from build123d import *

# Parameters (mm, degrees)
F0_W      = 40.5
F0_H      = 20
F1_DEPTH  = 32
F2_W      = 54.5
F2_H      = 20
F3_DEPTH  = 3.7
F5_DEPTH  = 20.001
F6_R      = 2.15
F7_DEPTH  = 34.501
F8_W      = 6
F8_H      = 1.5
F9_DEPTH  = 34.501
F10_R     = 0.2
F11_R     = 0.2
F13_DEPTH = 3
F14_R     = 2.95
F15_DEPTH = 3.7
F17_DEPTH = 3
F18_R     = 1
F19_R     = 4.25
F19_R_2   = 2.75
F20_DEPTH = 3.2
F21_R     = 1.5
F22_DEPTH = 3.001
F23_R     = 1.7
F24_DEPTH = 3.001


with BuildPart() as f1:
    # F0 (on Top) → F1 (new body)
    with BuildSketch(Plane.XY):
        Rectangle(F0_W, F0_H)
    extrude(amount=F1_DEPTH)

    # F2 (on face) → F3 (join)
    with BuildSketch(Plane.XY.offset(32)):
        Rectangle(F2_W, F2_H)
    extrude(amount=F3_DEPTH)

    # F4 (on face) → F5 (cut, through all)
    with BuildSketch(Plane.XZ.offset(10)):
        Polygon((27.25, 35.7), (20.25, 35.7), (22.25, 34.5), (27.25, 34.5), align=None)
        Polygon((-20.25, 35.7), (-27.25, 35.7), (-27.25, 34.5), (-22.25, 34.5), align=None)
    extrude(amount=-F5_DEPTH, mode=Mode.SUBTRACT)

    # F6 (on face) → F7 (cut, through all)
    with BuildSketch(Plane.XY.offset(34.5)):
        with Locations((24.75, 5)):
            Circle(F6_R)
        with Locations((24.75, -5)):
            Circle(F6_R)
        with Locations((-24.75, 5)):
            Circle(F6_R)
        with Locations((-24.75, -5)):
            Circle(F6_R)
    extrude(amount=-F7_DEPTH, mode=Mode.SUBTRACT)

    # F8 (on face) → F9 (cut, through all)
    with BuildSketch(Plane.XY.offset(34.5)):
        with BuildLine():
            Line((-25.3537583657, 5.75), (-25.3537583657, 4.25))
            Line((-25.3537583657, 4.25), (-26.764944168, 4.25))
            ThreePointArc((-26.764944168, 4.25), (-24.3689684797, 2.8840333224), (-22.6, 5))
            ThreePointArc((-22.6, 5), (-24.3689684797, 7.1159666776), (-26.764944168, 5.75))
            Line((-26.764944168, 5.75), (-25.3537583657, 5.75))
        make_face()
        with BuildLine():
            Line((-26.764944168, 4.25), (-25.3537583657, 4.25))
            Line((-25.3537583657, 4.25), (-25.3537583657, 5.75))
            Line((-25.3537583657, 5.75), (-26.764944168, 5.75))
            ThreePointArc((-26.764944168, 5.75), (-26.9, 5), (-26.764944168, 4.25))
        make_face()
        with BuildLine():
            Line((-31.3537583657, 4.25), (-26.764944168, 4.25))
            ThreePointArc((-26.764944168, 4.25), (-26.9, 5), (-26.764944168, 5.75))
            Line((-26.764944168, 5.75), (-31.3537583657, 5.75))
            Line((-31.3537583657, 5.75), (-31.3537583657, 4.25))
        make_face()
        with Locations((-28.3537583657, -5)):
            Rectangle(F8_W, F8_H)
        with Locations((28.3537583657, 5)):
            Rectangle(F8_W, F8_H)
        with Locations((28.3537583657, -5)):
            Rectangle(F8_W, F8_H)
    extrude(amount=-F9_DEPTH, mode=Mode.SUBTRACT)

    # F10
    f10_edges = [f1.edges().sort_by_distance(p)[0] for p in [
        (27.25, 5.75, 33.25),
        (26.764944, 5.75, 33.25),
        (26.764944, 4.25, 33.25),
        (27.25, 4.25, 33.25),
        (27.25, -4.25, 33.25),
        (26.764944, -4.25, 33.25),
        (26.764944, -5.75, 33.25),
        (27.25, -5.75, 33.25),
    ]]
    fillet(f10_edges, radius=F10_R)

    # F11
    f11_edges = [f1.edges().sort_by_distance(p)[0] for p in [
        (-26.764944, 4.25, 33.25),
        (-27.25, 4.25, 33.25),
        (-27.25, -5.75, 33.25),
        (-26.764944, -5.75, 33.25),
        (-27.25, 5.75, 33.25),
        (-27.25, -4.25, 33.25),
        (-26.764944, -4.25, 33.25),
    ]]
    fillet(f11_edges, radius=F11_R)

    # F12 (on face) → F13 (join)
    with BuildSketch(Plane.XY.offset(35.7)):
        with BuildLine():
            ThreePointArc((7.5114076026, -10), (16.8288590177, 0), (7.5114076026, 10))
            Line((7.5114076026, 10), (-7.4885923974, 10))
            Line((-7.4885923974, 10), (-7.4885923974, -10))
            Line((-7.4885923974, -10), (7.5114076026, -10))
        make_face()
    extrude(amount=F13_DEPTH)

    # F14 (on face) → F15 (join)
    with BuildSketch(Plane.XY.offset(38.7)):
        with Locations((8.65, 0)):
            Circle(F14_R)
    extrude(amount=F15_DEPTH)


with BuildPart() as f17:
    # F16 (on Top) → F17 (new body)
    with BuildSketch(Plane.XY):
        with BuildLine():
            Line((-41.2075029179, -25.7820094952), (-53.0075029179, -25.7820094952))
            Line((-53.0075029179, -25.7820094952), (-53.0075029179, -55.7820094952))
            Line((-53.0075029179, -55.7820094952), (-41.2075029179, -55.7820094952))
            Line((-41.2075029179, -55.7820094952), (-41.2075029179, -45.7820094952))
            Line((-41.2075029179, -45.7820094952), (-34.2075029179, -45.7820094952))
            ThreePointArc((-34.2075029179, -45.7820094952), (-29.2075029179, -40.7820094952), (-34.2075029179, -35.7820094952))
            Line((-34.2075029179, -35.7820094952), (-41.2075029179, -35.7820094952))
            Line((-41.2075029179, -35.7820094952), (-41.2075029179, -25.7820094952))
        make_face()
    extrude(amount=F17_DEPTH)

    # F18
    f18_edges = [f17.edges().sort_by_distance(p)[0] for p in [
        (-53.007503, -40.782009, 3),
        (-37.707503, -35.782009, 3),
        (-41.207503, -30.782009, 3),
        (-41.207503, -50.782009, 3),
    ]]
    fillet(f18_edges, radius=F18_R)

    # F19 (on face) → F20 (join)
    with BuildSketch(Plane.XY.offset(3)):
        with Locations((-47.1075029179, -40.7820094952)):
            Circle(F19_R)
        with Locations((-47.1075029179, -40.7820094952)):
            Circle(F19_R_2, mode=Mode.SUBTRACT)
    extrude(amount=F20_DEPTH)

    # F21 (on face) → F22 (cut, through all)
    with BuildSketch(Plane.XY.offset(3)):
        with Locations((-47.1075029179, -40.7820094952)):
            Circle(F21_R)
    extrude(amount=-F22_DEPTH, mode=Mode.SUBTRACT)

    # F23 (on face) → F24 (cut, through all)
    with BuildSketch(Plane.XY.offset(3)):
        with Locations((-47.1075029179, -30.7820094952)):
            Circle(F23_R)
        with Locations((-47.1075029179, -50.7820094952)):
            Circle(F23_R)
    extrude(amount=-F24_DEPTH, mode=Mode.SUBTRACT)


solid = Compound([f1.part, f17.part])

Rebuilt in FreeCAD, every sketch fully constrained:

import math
import FreeCAD as App
import Part
import Sketcher


def edges_at(feature, points):
    """Names of the edges that pass closest to the given points."""
    edges = feature.Shape.Edges
    near = lambda p: min(range(len(edges)), key=lambda i: edges[i].distToShape(Part.Vertex(*p))[0])
    return sorted({f"Edge{near(p) + 1}" for p in points})


def add_polygon(sketch, points):
    """Adds a closed chain of lines whose ends are joined by coincident constraints."""
    first, n = sketch.GeometryCount, len(points)
    for a, b in zip(points, points[1:] + points[:1]):
        sketch.addGeometry(Part.LineSegment(App.Vector(*a, 0), App.Vector(*b, 0)), False)
    for i in range(n):
        sketch.addConstraint(Sketcher.Constraint("Coincident", first + i, 2, first + (i + 1) % n, 1))

doc = App.newDocument("Part")
body = doc.addObject("PartDesign::Body", "Body")

sketch1 = doc.addObject("Sketcher::SketchObject", "Sketch")
body.addObject(sketch1)
sketch1.AttachmentSupport = (doc.XY_Plane, [""])
sketch1.MapMode = "FlatFace"
add_polygon(sketch1, [(-20, 10), (-20, -10), (20, -10), (20, 10)])
sketch1.addConstraint(Sketcher.Constraint("Vertical", 0))
sketch1.addConstraint(Sketcher.Constraint("Horizontal", 1))
sketch1.addConstraint(Sketcher.Constraint("Vertical", 2))
sketch1.addConstraint(Sketcher.Constraint("Horizontal", 3))
sketch1.addConstraint(Sketcher.Constraint("Symmetric", 0, 2, 2, 2, -1, 1))
sketch1.addConstraint(Sketcher.Constraint("DistanceY", 0, 2, 0, 1, 20.0))
sketch1.addConstraint(Sketcher.Constraint("DistanceX", 1, 1, 1, 2, 40.5))
pad1 = doc.addObject("PartDesign::Pad", "Pad")
body.addObject(pad1)
pad1.Profile = sketch1
pad1.Length = 32

sketch2 = doc.addObject("Sketcher::SketchObject", "Sketch001")
body.addObject(sketch2)
sketch2.AttachmentSupport = (doc.XY_Plane, [""])
sketch2.MapMode = "FlatFace"
sketch2.AttachmentOffset = App.Placement(App.Vector(0, 0, 32), App.Rotation())
add_polygon(sketch2, [(-27, 10), (-27, -10), (27, -10), (27, 10)])
sketch2.addConstraint(Sketcher.Constraint("Vertical", 0))
sketch2.addConstraint(Sketcher.Constraint("Horizontal", 1))
sketch2.addConstraint(Sketcher.Constraint("Vertical", 2))
sketch2.addConstraint(Sketcher.Constraint("Horizontal", 3))
sketch2.addConstraint(Sketcher.Constraint("Symmetric", 0, 2, 2, 2, -1, 1))
sketch2.addConstraint(Sketcher.Constraint("DistanceY", 0, 2, 0, 1, 20.0))
sketch2.addConstraint(Sketcher.Constraint("DistanceX", 1, 1, 1, 2, 54.5))
pad2 = doc.addObject("PartDesign::Pad", "Pad001")
body.addObject(pad2)
pad2.Profile = sketch2
pad2.Length = 3.7

sketch3 = doc.addObject("Sketcher::SketchObject", "Sketch002")
body.addObject(sketch3)
sketch3.AttachmentSupport = (doc.XZ_Plane, [""])
sketch3.MapMode = "FlatFace"
sketch3.AttachmentOffset = App.Placement(App.Vector(0, 0, 10), App.Rotation())
add_polygon(sketch3, [(27.2, 35.7), (20.2, 35.7), (22.2, 34.5), (27.2, 34.5)])
add_polygon(sketch3, [(-20.2, 35.7), (-27.2, 35.7), (-27.2, 34.5), (-22.2, 34.5)])
sketch3.addConstraint(Sketcher.Constraint("Horizontal", 0))
sketch3.addConstraint(Sketcher.Constraint("Horizontal", 2))
sketch3.addConstraint(Sketcher.Constraint("Vertical", 3))
sketch3.addConstraint(Sketcher.Constraint("Horizontal", 4))
sketch3.addConstraint(Sketcher.Constraint("Vertical", 5))
sketch3.addConstraint(Sketcher.Constraint("Horizontal", 6))
sketch3.addConstraint(Sketcher.Constraint("Symmetric", 3, 2, 4, 2, -2))
sketch3.addConstraint(Sketcher.Constraint("Symmetric", 1, 2, 6, 2, -2))
sketch3.addConstraint(Sketcher.Constraint("Equal", 0, 4))
sketch3.addConstraint(Sketcher.Constraint("DistanceX", 0, 2, 0, 1, 7.0))
sketch3.addConstraint(Sketcher.Constraint("DistanceX", 2, 1, 2, 2, 5.0))
sketch3.addConstraint(Sketcher.Constraint("DistanceY", 3, 1, 3, 2, 1.2))
sketch3.addConstraint(Sketcher.Constraint("DistanceY", -1, 1, 0, 2, 35.7))
sketch3.addConstraint(Sketcher.Constraint("DistanceX", 4, 2, 0, 2, 47.5))
pocket1 = doc.addObject("PartDesign::Pocket", "Pocket")
body.addObject(pocket1)
pocket1.Profile = sketch3
pocket1.Type = "ThroughAll"

sketch4 = doc.addObject("Sketcher::SketchObject", "Sketch003")
body.addObject(sketch4)
sketch4.AttachmentSupport = (doc.XY_Plane, [""])
sketch4.MapMode = "FlatFace"
sketch4.AttachmentOffset = App.Placement(App.Vector(0, 0, 34.5), App.Rotation())
sketch4.addGeometry(Part.Circle(App.Vector(24.8, 5, 0), App.Vector(0, 0, 1), 2.1), False)
sketch4.addGeometry(Part.Circle(App.Vector(24.8, -5, 0), App.Vector(0, 0, 1), 2.1), False)
sketch4.addGeometry(Part.Circle(App.Vector(-24.8, 5, 0), App.Vector(0, 0, 1), 2.1), False)
sketch4.addGeometry(Part.Circle(App.Vector(-24.8, -5, 0), App.Vector(0, 0, 1), 2.1), False)
sketch4.addConstraint(Sketcher.Constraint("Equal", 0, 1))
sketch4.addConstraint(Sketcher.Constraint("Equal", 1, 2))
sketch4.addConstraint(Sketcher.Constraint("Equal", 2, 3))
sketch4.addConstraint(Sketcher.Constraint("Symmetric", 1, 3, 2, 3, -1, 1))
sketch4.addConstraint(Sketcher.Constraint("Symmetric", 0, 3, 3, 3, -1, 1))
sketch4.addConstraint(Sketcher.Constraint("Symmetric", 0, 3, 2, 3, -2))
sketch4.addConstraint(Sketcher.Constraint("Diameter", 0, 4.3))
sketch4.addConstraint(Sketcher.Constraint("DistanceY", -1, 1, 0, 3, 5.0))
sketch4.addConstraint(Sketcher.Constraint("DistanceX", 2, 3, 0, 3, 49.5))
pocket2 = doc.addObject("PartDesign::Pocket", "Pocket001")
body.addObject(pocket2)
pocket2.Profile = sketch4
pocket2.Type = "ThroughAll"

sketch5 = doc.addObject("Sketcher::SketchObject", "Sketch004")
body.addObject(sketch5)
sketch5.AttachmentSupport = (doc.XY_Plane, [""])
sketch5.MapMode = "FlatFace"
sketch5.AttachmentOffset = App.Placement(App.Vector(0, 0, 34.5), App.Rotation())
sketch5.addGeometry(Part.ArcOfCircle(Part.Circle(App.Vector(-24.8, 5, 0), App.Vector(0, 0, 1), 2.1), math.radians(-160), math.radians(0)), False)
sketch5.addGeometry(Part.ArcOfCircle(Part.Circle(App.Vector(-24.8, 5, 0), App.Vector(0, 0, 1), 2.1), math.radians(0), math.radians(160)), False)
sketch5.addGeometry(Part.LineSegment(App.Vector(-26.8, 5.8, 0), App.Vector(-31.4, 5.8, 0)), False)
sketch5.addGeometry(Part.LineSegment(App.Vector(-31.4, 5.8, 0), App.Vector(-31.4, 4.2, 0)), False)
sketch5.addGeometry(Part.LineSegment(App.Vector(-31.4, 4.2, 0), App.Vector(-26.8, 4.2, 0)), False)
add_polygon(sketch5, [(-31.4, -4.2), (-31.4, -5.8), (-25.4, -5.8), (-25.4, -4.2)])
add_polygon(sketch5, [(25.4, 5.8), (25.4, 4.2), (31.4, 4.2), (31.4, 5.8)])
add_polygon(sketch5, [(25.4, -4.2), (25.4, -5.8), (31.4, -5.8), (31.4, -4.2)])
sketch5.addConstraint(Sketcher.Constraint("Tangent", 0, 2, 1, 1))
sketch5.addConstraint(Sketcher.Constraint("Coincident", 1, 2, 2, 1))
sketch5.addConstraint(Sketcher.Constraint("Coincident", 2, 2, 3, 1))
sketch5.addConstraint(Sketcher.Constraint("Coincident", 3, 2, 4, 1))
sketch5.addConstraint(Sketcher.Constraint("Coincident", 4, 2, 0, 1))
sketch5.addConstraint(Sketcher.Constraint("Horizontal", 2))
sketch5.addConstraint(Sketcher.Constraint("Vertical", 3))
sketch5.addConstraint(Sketcher.Constraint("Horizontal", 4))
sketch5.addConstraint(Sketcher.Constraint("Vertical", 5))
sketch5.addConstraint(Sketcher.Constraint("Horizontal", 6))
sketch5.addConstraint(Sketcher.Constraint("Vertical", 7))
sketch5.addConstraint(Sketcher.Constraint("Horizontal", 8))
sketch5.addConstraint(Sketcher.Constraint("Vertical", 9))
sketch5.addConstraint(Sketcher.Constraint("Horizontal", 10))
sketch5.addConstraint(Sketcher.Constraint("Vertical", 11))
sketch5.addConstraint(Sketcher.Constraint("Horizontal", 12))
sketch5.addConstraint(Sketcher.Constraint("Vertical", 13))
sketch5.addConstraint(Sketcher.Constraint("Horizontal", 14))
sketch5.addConstraint(Sketcher.Constraint("Vertical", 15))
sketch5.addConstraint(Sketcher.Constraint("Horizontal", 16))
sketch5.addConstraint(Sketcher.Constraint("Equal", 0, 1))
sketch5.addConstraint(Sketcher.Constraint("Symmetric", 7, 2, 9, 2, -1, 1))
sketch5.addConstraint(Sketcher.Constraint("Symmetric", 5, 2, 11, 2, -1, 1))
sketch5.addConstraint(Sketcher.Constraint("Symmetric", 2, 2, 14, 2, -1, 1))
sketch5.addConstraint(Sketcher.Constraint("Symmetric", 3, 2, 10, 2, -2))
sketch5.addConstraint(Sketcher.Constraint("Symmetric", 6, 2, 13, 2, -2))
sketch5.addConstraint(Sketcher.Constraint("Horizontal", 1, 3, 0, 2))
sketch5.addConstraint(Sketcher.Constraint("Horizontal", 8, 2, 15, 2))
sketch5.addConstraint(Sketcher.Constraint("Vertical", 1, 2, 4, 2))
sketch5.addConstraint(Sketcher.Constraint("DistanceX", 6, 1, 6, 2, 6.0))
sketch5.addConstraint(Sketcher.Constraint("Radius", 0, 2.15))
sketch5.addConstraint(Sketcher.Constraint("DistanceY", 3, 2, 3, 1, 1.5))
sketch5.addConstraint(Sketcher.Constraint("DistanceY", -1, 1, 0, 3, 5.0))
sketch5.addConstraint(Sketcher.Constraint("DistanceX", 0, 2, -1, 1, 22.6))
sketch5.addConstraint(Sketcher.Constraint("DistanceX", 2, 2, 2, 1, 4.588814))
pocket3 = doc.addObject("PartDesign::Pocket", "Pocket002")
body.addObject(pocket3)
pocket3.Profile = sketch5
pocket3.Type = "ThroughAll"
doc.recompute()

fillet = doc.addObject("PartDesign::Fillet", "Fillet")
body.addObject(fillet)
fillet.Base = (pocket3, edges_at(pocket3, [
    (27.25, 5.75, 33.25),
    (26.765, 5.75, 33.25),
    (26.765, 4.25, 33.25),
    (27.25, 4.25, 33.25),
    (27.25, -4.25, 33.25),
    (26.765, -4.25, 33.25),
    (26.765, -5.75, 33.25),
    (27.25, -5.75, 33.25),
]))
fillet.Radius = 0.2
doc.recompute()

fillet2 = doc.addObject("PartDesign::Fillet", "Fillet001")
body.addObject(fillet2)
fillet2.Base = (fillet, edges_at(fillet, [
    (-26.765, 4.25, 33.25),
    (-27.25, 4.25, 33.25),
    (-27.25, -5.75, 33.25),
    (-26.765, -5.75, 33.25),
    (-27.25, 5.75, 33.25),
    (-27.25, -4.25, 33.25),
    (-26.765, -4.25, 33.25),
]))
fillet2.Radius = 0.2

sketch6 = doc.addObject("Sketcher::SketchObject", "Sketch005")
body.addObject(sketch6)
sketch6.AttachmentSupport = (doc.XY_Plane, [""])
sketch6.MapMode = "FlatFace"
sketch6.AttachmentOffset = App.Placement(App.Vector(0, 0, 35.7), App.Rotation())
sketch6.addGeometry(Part.ArcOfCircle(Part.Circle(App.Vector(7, 0, 0), App.Vector(0, 0, 1), 10), math.radians(-86), math.radians(86)), False)
sketch6.addGeometry(Part.LineSegment(App.Vector(8, 10, 0), App.Vector(-7, 10, 0)), False)
sketch6.addGeometry(Part.LineSegment(App.Vector(-7, 10, 0), App.Vector(-7, -10, 0)), False)
sketch6.addGeometry(Part.LineSegment(App.Vector(-7, -10, 0), App.Vector(8, -10, 0)), False)
sketch6.addConstraint(Sketcher.Constraint("Coincident", 0, 2, 1, 1))
sketch6.addConstraint(Sketcher.Constraint("Coincident", 1, 2, 2, 1))
sketch6.addConstraint(Sketcher.Constraint("Coincident", 2, 2, 3, 1))
sketch6.addConstraint(Sketcher.Constraint("Coincident", 3, 2, 0, 1))
sketch6.addConstraint(Sketcher.Constraint("Horizontal", 1))
sketch6.addConstraint(Sketcher.Constraint("Vertical", 2))
sketch6.addConstraint(Sketcher.Constraint("Horizontal", 3))
sketch6.addConstraint(Sketcher.Constraint("Symmetric", 0, 2, 3, 2, -1))
sketch6.addConstraint(Sketcher.Constraint("DistanceX", 1, 2, 1, 1, 15.0))
sketch6.addConstraint(Sketcher.Constraint("DistanceY", 2, 2, 2, 1, 20.0))
sketch6.addConstraint(Sketcher.Constraint("Radius", 0, 10.025))
sketch6.addConstraint(Sketcher.Constraint("DistanceX", -1, 1, 0, 3, 6.803859))
pad3 = doc.addObject("PartDesign::Pad", "Pad002")
body.addObject(pad3)
pad3.Profile = sketch6
pad3.Length = 3

sketch7 = doc.addObject("Sketcher::SketchObject", "Sketch006")
body.addObject(sketch7)
sketch7.AttachmentSupport = (doc.XY_Plane, [""])
sketch7.MapMode = "FlatFace"
sketch7.AttachmentOffset = App.Placement(App.Vector(0, 0, 38.7), App.Rotation())
sketch7.addGeometry(Part.Circle(App.Vector(8.7, 0, 0), App.Vector(0, 0, 1), 3), False)
sketch7.addConstraint(Sketcher.Constraint("PointOnObject", 0, 3, -1))
sketch7.addConstraint(Sketcher.Constraint("Diameter", 0, 5.9))
sketch7.addConstraint(Sketcher.Constraint("DistanceX", -1, 1, 0, 3, 8.65))
pad4 = doc.addObject("PartDesign::Pad", "Pad003")
body.addObject(pad4)
pad4.Profile = sketch7
pad4.Length = 3.7
body2 = doc.addObject("PartDesign::Body", "Body001")

sketch8 = doc.addObject("Sketcher::SketchObject", "Sketch007")
body2.addObject(sketch8)
sketch8.AttachmentSupport = (doc.getObject("XY_Plane001"), [""])
sketch8.MapMode = "FlatFace"
sketch8.addGeometry(Part.LineSegment(App.Vector(-41, -26, 0), App.Vector(-53, -26, 0)), False)
sketch8.addGeometry(Part.LineSegment(App.Vector(-53, -26, 0), App.Vector(-53, -56, 0)), False)
sketch8.addGeometry(Part.LineSegment(App.Vector(-53, -56, 0), App.Vector(-41, -56, 0)), False)
sketch8.addGeometry(Part.LineSegment(App.Vector(-41, -56, 0), App.Vector(-41, -46, 0)), False)
sketch8.addGeometry(Part.LineSegment(App.Vector(-41, -46, 0), App.Vector(-34, -46, 0)), False)
sketch8.addGeometry(Part.ArcOfCircle(Part.Circle(App.Vector(-34, -41, 0), App.Vector(0, 0, 1), 5), math.radians(-90), math.radians(90)), False)
sketch8.addGeometry(Part.LineSegment(App.Vector(-34, -36, 0), App.Vector(-41, -36, 0)), False)
sketch8.addGeometry(Part.LineSegment(App.Vector(-41, -36, 0), App.Vector(-41, -26, 0)), False)
sketch8.addConstraint(Sketcher.Constraint("Coincident", 0, 2, 1, 1))
sketch8.addConstraint(Sketcher.Constraint("Coincident", 1, 2, 2, 1))
sketch8.addConstraint(Sketcher.Constraint("Coincident", 2, 2, 3, 1))
sketch8.addConstraint(Sketcher.Constraint("Coincident", 3, 2, 4, 1))
sketch8.addConstraint(Sketcher.Constraint("Tangent", 4, 2, 5, 1))
sketch8.addConstraint(Sketcher.Constraint("Tangent", 5, 2, 6, 1))
sketch8.addConstraint(Sketcher.Constraint("Coincident", 6, 2, 7, 1))
sketch8.addConstraint(Sketcher.Constraint("Coincident", 7, 2, 0, 1))
sketch8.addConstraint(Sketcher.Constraint("Horizontal", 0))
sketch8.addConstraint(Sketcher.Constraint("Vertical", 1))
sketch8.addConstraint(Sketcher.Constraint("Horizontal", 2))
sketch8.addConstraint(Sketcher.Constraint("Vertical", 3))
sketch8.addConstraint(Sketcher.Constraint("Horizontal", 4))
sketch8.addConstraint(Sketcher.Constraint("Horizontal", 6))
sketch8.addConstraint(Sketcher.Constraint("Vertical", 7))
sketch8.addConstraint(Sketcher.Constraint("Vertical", 3, 2, 6, 2))
sketch8.addConstraint(Sketcher.Constraint("Equal", 3, 7))
sketch8.addConstraint(Sketcher.Constraint("Radius", 5, 5.0))
sketch8.addConstraint(Sketcher.Constraint("DistanceX", 4, 1, 4, 2, 7.0))
sketch8.addConstraint(Sketcher.Constraint("DistanceY", 1, 2, 1, 1, 30.0))
sketch8.addConstraint(Sketcher.Constraint("DistanceX", 0, 2, 0, 1, 11.8))
sketch8.addConstraint(Sketcher.Constraint("DistanceY", 5, 3, -1, 1, 40.782009))
sketch8.addConstraint(Sketcher.Constraint("DistanceX", 5, 3, -1, 1, 34.207503))
pad5 = doc.addObject("PartDesign::Pad", "Pad004")
body2.addObject(pad5)
pad5.Profile = sketch8
pad5.Length = 3
doc.recompute()

fillet3 = doc.addObject("PartDesign::Fillet", "Fillet002")
body2.addObject(fillet3)
fillet3.Base = (pad5, edges_at(pad5, [
    (-53.008, -40.782, 3),
    (-37.708, -35.782, 3),
    (-41.208, -30.782, 3),
    (-41.208, -50.782, 3),
]))
fillet3.Radius = 1

sketch9 = doc.addObject("Sketcher::SketchObject", "Sketch008")
body2.addObject(sketch9)
sketch9.AttachmentSupport = (doc.getObject("XY_Plane001"), [""])
sketch9.MapMode = "FlatFace"
sketch9.AttachmentOffset = App.Placement(App.Vector(0, 0, 3), App.Rotation())
sketch9.addGeometry(Part.Circle(App.Vector(-47.1, -40.8, 0), App.Vector(0, 0, 1), 4.2), False)
sketch9.addGeometry(Part.Circle(App.Vector(-47.1, -40.8, 0), App.Vector(0, 0, 1), 2.8), False)
sketch9.addConstraint(Sketcher.Constraint("Coincident", 1, 3, 0, 3))
sketch9.addConstraint(Sketcher.Constraint("Diameter", 0, 8.5))
sketch9.addConstraint(Sketcher.Constraint("Diameter", 1, 5.5))
sketch9.addConstraint(Sketcher.Constraint("DistanceY", 0, 3, -1, 1, 40.782009))
sketch9.addConstraint(Sketcher.Constraint("DistanceX", 0, 3, -1, 1, 47.107503))
pad6 = doc.addObject("PartDesign::Pad", "Pad005")
body2.addObject(pad6)
pad6.Profile = sketch9
pad6.Length = 3.2

sketch10 = doc.addObject("Sketcher::SketchObject", "Sketch009")
body2.addObject(sketch10)
sketch10.AttachmentSupport = (doc.getObject("XY_Plane001"), [""])
sketch10.MapMode = "FlatFace"
sketch10.AttachmentOffset = App.Placement(App.Vector(0, 0, 3), App.Rotation())
sketch10.addGeometry(Part.Circle(App.Vector(-47.1, -40.8, 0), App.Vector(0, 0, 1), 1.5), False)
sketch10.addConstraint(Sketcher.Constraint("Diameter", 0, 3.0))
sketch10.addConstraint(Sketcher.Constraint("DistanceY", 0, 3, -1, 1, 40.782009))
sketch10.addConstraint(Sketcher.Constraint("DistanceX", 0, 3, -1, 1, 47.107503))
pocket4 = doc.addObject("PartDesign::Pocket", "Pocket003")
body2.addObject(pocket4)
pocket4.Profile = sketch10
pocket4.Type = "ThroughAll"

sketch11 = doc.addObject("Sketcher::SketchObject", "Sketch010")
body2.addObject(sketch11)
sketch11.AttachmentSupport = (doc.getObject("XY_Plane001"), [""])
sketch11.MapMode = "FlatFace"
sketch11.AttachmentOffset = App.Placement(App.Vector(0, 0, 3), App.Rotation())
sketch11.addGeometry(Part.Circle(App.Vector(-47.1, -30.8, 0), App.Vector(0, 0, 1), 1.7), False)
sketch11.addGeometry(Part.Circle(App.Vector(-47.1, -50.8, 0), App.Vector(0, 0, 1), 1.7), False)
sketch11.addConstraint(Sketcher.Constraint("Equal", 0, 1))
sketch11.addConstraint(Sketcher.Constraint("Vertical", 0, 3, 1, 3))
sketch11.addConstraint(Sketcher.Constraint("Diameter", 0, 3.4))
sketch11.addConstraint(Sketcher.Constraint("DistanceY", 1, 3, 0, 3, 20.0))
sketch11.addConstraint(Sketcher.Constraint("DistanceY", 0, 3, -1, 1, 30.782009))
sketch11.addConstraint(Sketcher.Constraint("DistanceX", 0, 3, -1, 1, 47.107503))
pocket5 = doc.addObject("PartDesign::Pocket", "Pocket004")
body2.addObject(pocket5)
pocket5.Profile = sketch11
pocket5.Type = "ThroughAll"

doc.recompute()
